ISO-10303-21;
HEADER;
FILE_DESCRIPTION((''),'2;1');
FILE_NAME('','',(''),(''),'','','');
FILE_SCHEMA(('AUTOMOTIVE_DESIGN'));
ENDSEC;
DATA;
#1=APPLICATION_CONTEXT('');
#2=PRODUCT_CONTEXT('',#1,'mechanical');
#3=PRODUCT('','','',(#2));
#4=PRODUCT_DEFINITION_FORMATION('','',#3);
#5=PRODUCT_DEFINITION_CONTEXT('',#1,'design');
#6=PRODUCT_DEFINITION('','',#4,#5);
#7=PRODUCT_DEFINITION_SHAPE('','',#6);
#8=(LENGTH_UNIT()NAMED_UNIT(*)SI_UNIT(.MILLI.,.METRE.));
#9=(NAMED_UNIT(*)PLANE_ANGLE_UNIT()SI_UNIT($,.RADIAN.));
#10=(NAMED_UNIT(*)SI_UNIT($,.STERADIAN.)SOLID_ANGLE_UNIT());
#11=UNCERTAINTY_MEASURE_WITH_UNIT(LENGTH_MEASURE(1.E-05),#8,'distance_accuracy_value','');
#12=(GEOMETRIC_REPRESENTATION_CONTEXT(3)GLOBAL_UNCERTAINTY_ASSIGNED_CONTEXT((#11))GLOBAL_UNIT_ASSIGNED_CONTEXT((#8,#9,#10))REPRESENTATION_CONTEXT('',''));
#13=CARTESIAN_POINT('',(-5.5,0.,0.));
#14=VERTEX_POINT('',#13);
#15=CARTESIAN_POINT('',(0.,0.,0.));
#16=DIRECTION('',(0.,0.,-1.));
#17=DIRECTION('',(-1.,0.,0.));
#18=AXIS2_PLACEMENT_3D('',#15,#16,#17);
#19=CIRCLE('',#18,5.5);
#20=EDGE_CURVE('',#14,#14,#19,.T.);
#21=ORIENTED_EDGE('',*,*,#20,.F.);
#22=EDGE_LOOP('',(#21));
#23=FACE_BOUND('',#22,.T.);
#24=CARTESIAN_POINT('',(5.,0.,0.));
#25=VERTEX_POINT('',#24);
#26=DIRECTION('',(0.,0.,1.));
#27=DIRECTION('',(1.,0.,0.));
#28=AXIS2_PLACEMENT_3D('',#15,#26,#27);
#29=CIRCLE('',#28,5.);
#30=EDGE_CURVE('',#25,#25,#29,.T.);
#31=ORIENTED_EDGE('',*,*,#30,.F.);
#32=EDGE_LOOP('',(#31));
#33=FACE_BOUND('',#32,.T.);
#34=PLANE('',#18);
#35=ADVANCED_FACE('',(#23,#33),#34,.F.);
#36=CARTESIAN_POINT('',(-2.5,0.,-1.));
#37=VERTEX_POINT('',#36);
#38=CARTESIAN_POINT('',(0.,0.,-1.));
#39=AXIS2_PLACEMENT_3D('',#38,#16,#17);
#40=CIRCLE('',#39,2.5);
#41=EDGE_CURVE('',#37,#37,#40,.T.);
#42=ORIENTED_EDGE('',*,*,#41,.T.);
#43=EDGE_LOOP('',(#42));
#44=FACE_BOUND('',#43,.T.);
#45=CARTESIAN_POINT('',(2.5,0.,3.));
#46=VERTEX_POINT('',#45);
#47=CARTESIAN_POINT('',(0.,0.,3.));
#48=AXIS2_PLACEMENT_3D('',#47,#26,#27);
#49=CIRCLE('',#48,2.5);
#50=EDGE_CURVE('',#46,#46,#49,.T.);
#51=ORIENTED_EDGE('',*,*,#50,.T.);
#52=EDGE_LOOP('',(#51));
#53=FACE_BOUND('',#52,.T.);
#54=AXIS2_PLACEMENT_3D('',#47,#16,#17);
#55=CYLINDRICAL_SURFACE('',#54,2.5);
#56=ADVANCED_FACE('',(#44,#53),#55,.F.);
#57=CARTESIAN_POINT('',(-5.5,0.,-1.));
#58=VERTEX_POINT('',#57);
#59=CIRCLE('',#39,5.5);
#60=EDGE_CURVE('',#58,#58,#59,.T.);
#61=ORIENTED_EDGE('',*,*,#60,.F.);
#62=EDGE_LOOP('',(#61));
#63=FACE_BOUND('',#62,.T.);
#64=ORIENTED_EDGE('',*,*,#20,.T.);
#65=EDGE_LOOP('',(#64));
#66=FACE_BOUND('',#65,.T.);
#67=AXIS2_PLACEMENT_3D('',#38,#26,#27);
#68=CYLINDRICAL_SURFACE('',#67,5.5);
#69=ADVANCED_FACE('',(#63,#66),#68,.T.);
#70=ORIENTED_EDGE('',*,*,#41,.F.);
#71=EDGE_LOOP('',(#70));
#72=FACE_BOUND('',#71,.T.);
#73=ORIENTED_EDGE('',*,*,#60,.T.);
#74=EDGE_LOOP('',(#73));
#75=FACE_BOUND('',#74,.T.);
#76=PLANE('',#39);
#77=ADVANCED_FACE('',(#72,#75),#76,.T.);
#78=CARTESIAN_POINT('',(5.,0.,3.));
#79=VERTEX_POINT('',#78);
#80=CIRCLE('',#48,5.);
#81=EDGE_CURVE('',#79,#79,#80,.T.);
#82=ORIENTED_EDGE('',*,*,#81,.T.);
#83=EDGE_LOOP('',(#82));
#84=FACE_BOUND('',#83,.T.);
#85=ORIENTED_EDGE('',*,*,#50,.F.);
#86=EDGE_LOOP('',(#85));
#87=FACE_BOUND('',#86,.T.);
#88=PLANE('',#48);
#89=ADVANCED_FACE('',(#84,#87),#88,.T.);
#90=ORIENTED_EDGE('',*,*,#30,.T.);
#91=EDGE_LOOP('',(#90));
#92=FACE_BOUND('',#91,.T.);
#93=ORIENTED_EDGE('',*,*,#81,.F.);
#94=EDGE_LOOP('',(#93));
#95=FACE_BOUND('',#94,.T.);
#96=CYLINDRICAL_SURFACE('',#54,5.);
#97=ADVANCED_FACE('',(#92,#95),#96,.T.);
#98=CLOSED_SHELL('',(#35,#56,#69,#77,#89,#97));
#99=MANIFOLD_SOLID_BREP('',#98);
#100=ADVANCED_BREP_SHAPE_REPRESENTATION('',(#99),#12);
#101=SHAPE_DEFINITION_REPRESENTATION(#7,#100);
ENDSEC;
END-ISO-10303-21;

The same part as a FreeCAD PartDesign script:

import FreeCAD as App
import Part
import Sketcher

V = App.Vector

doc = App.newDocument("Part")
body = doc.addObject("PartDesign::Body", "Body")

sketch1 = body.newObject("Sketcher::SketchObject", "Sketch")
sketch1.AttachmentSupport = (doc.getObject("XY_Plane"), [""])
sketch1.MapMode = "FlatFace"
sketch1.addGeometry([
    Part.Circle(V(0, 0, 0), V(0, 0, 1), 5),
    Part.Circle(V(0, 0, 0), V(0, 0, 1), 2.5),
], False)
sketch1.addConstraint([
    Sketcher.Constraint("Coincident", 0, 3, -1, 1),
    Sketcher.Constraint("Coincident", 1, 3, -1, 1),
    Sketcher.Constraint("Diameter", 0, 10.0),
    Sketcher.Constraint("Diameter", 1, 5.0),
])
pad1 = body.newObject("PartDesign::Pad", "Pad")
pad1.Profile = sketch1
pad1.Length = 3

sketch2 = body.newObject("Sketcher::SketchObject", "Sketch001")
sketch2.AttachmentSupport = (doc.getObject("XY_Plane"), [""])
sketch2.MapMode = "FlatFace"
sketch2.AttachmentOffset = App.Placement(V(0, 0, -1), App.Rotation())
sketch2.addGeometry([
    Part.Circle(V(0, 0, 0), V(0, 0, 1), 5.5),
    Part.Circle(V(0, 0, 0), V(0, 0, 1), 2.5),
], False)
sketch2.addConstraint([
    Sketcher.Constraint("Coincident", 0, 3, -1, 1),
    Sketcher.Constraint("Coincident", 1, 3, -1, 1),
    Sketcher.Constraint("Diameter", 0, 11.0),
    Sketcher.Constraint("Diameter", 1, 5.0),
])
pad2 = body.newObject("PartDesign::Pad", "Pad001")
pad2.Profile = sketch2
pad2.Length = 1

doc.recompute()
